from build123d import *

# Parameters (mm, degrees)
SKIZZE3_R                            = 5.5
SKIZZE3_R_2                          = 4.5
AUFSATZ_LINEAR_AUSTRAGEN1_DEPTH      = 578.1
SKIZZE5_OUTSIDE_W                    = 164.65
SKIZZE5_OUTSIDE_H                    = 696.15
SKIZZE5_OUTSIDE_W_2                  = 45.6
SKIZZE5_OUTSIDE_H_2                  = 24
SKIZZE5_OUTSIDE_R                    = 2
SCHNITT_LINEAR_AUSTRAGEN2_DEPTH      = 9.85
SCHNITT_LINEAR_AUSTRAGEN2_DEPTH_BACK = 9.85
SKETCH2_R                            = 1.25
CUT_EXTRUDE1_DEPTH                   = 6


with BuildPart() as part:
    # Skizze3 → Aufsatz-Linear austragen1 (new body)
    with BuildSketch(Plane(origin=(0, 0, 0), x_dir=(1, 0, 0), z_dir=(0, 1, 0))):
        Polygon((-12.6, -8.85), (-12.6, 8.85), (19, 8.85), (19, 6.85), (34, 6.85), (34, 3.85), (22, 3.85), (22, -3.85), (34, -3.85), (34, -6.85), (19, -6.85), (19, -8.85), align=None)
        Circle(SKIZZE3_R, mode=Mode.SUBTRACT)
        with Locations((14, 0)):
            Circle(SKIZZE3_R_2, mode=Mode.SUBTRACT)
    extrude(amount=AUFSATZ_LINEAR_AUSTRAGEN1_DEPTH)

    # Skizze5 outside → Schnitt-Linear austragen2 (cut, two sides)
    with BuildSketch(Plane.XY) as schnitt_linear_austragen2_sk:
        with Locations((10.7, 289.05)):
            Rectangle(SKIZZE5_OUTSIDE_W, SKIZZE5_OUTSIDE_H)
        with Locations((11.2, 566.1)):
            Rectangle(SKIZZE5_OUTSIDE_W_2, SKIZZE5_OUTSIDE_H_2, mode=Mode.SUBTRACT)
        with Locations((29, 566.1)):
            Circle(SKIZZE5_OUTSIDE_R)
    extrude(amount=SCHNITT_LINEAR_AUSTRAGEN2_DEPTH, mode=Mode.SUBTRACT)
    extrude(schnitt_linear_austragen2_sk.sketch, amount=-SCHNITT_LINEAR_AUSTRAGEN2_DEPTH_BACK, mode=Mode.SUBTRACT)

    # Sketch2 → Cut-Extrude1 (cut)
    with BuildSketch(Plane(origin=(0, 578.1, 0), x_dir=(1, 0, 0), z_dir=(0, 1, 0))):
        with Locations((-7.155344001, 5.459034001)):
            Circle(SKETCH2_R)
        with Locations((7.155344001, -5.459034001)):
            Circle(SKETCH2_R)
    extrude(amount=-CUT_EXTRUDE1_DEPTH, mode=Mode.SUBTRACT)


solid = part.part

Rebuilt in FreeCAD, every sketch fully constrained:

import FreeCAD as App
import Part
import Sketcher

V = App.Vector
Q = App.Units.Quantity

doc = App.newDocument("Part")
body = doc.addObject("PartDesign::Body", "Body")

sketch1 = body.newObject("Sketcher::SketchObject", "Sketch")
sketch1.AttachmentSupport = (doc.getObject("XZ_Plane"), [""])
sketch1.MapMode = "FlatFace"
sketch1.addGeometry([
    Part.LineSegment(V(-12.6, -8.85, 0), V(-12.6, 8.85, 0)),
    Part.LineSegment(V(-12.6, 8.85, 0), V(19, 8.85, 0)),
    Part.LineSegment(V(19, 8.85, 0), V(19, 6.85, 0)),
    Part.LineSegment(V(19, 6.85, 0), V(34, 6.85, 0)),
    Part.LineSegment(V(34, 6.85, 0), V(34, 3.85, 0)),
    Part.LineSegment(V(34, 3.85, 0), V(22, 3.85, 0)),
    Part.LineSegment(V(22, 3.85, 0), V(22, -3.85, 0)),
    Part.LineSegment(V(22, -3.85, 0), V(34, -3.85, 0)),
    Part.LineSegment(V(34, -3.85, 0), V(34, -6.85, 0)),
    Part.LineSegment(V(34, -6.85, 0), V(19, -6.85, 0)),
    Part.LineSegment(V(19, -6.85, 0), V(19, -8.85, 0)),
    Part.LineSegment(V(19, -8.85, 0), V(-12.6, -8.85, 0)),
    Part.Circle(V(14, 0, 0), V(0, 0, 1), 4.5),
    Part.Circle(V(0, 0, 0), V(0, 0, 1), 5.5),
], False)
sketch1.addConstraint([
    Sketcher.Constraint("Coincident", 0, 2, 1, 1),
    Sketcher.Constraint("Coincident", 1, 2, 2, 1),
    Sketcher.Constraint("Coincident", 2, 2, 3, 1),
    Sketcher.Constraint("Coincident", 3, 2, 4, 1),
    Sketcher.Constraint("Coincident", 4, 2, 5, 1),
    Sketcher.Constraint("Coincident", 5, 2, 6, 1),
    Sketcher.Constraint("Coincident", 6, 2, 7, 1),
    Sketcher.Constraint("Coincident", 7, 2, 8, 1),
    Sketcher.Constraint("Coincident", 8, 2, 9, 1),
    Sketcher.Constraint("Coincident", 9, 2, 10, 1),
    Sketcher.Constraint("Coincident", 10, 2, 11, 1),
    Sketcher.Constraint("Coincident", 11, 2, 0, 1),
    Sketcher.Constraint("Vertical", 0),
    Sketcher.Constraint("Horizontal", 1),
    Sketcher.Constraint("Vertical", 2),
    Sketcher.Constraint("Horizontal", 3),
    Sketcher.Constraint("Vertical", 4),
    Sketcher.Constraint("Horizontal", 5),
    Sketcher.Constraint("Vertical", 6),
    Sketcher.Constraint("Horizontal", 7),
    Sketcher.Constraint("Vertical", 8),
    Sketcher.Constraint("Horizontal", 9),
    Sketcher.Constraint("Vertical", 10),
    Sketcher.Constraint("Horizontal", 11),
    Sketcher.Constraint("Coincident", 13, 3, -1, 1),
    Sketcher.Constraint("Symmetric", 4, 2, 7, 2, -1),
    Sketcher.Constraint("Symmetric", 2, 2, 9, 2, -1),
    Sketcher.Constraint("PointOnObject", 12, 3, -1),
    Sketcher.Constraint("Equal", 2, 10),
    Sketcher.Constraint("Diameter", 12, Q("9 mm")),
    Sketcher.Constraint("Diameter", 13, Q("11 mm")),
    Sketcher.Constraint("DistanceX", 3, 1, 3, 2, Q("15 mm")),
    Sketcher.Constraint("DistanceX", 5, 2, 5, 1, Q("12 mm")),
    Sketcher.Constraint("DistanceY", 2, 2, 2, 1, Q("2 mm")),
    Sketcher.Constraint("DistanceY", 4, 2, 4, 1, Q("3 mm")),
    Sketcher.Constraint("DistanceX", 1, 1, 1, 2, Q("31.6 mm")),
    Sketcher.Constraint("DistanceY", 0, 1, 0, 2, Q("17.7 mm")),
    Sketcher.Constraint("DistanceX", -1, 1, 12, 3, Q("14 mm")),
    Sketcher.Constraint("DistanceX", -1, 1, 1, 2, Q("19 mm")),
])
pad1 = body.newObject("PartDesign::Pad", "Pad")
pad1.Profile = sketch1
pad1.Length = 578.1
pad1.Reversed = True

sketch2 = body.newObject("Sketcher::SketchObject", "Sketch001")
sketch2.AttachmentSupport = (doc.getObject("XY_Plane"), [""])
sketch2.MapMode = "FlatFace"
sketch2.addGeometry([
    Part.LineSegment(V(-71.625, 637.125, 0), V(-71.625, -59.025, 0)),
    Part.LineSegment(V(-71.625, -59.025, 0), V(93.025, -59.025, 0)),
    Part.LineSegment(V(93.025, -59.025, 0), V(93.025, 637.125, 0)),
    Part.LineSegment(V(93.025, 637.125, 0), V(-71.625, 637.125, 0)),
    Part.LineSegment(V(34, 554.1, 0), V(-11.6, 554.1, 0)),
    Part.LineSegment(V(-11.6, 554.1, 0), V(-11.6, 578.1, 0)),
    Part.LineSegment(V(-11.6, 578.1, 0), V(34, 578.1, 0)),
    Part.LineSegment(V(34, 578.1, 0), V(34, 554.1, 0)),
    Part.Circle(V(29, 566.1, 0), V(0, 0, 1), 2),
], False)
sketch2.addConstraint([
    Sketcher.Constraint("Coincident", 0, 2, 1, 1),
    Sketcher.Constraint("Coincident", 1, 2, 2, 1),
    Sketcher.Constraint("Coincident", 2, 2, 3, 1),
    Sketcher.Constraint("Coincident", 3, 2, 0, 1),
    Sketcher.Constraint("Coincident", 4, 2, 5, 1),
    Sketcher.Constraint("Coincident", 5, 2, 6, 1),
    Sketcher.Constraint("Coincident", 6, 2, 7, 1),
    Sketcher.Constraint("Coincident", 7, 2, 4, 1),
    Sketcher.Constraint("Vertical", 0),
    Sketcher.Constraint("Horizontal", 1),
    Sketcher.Constraint("Vertical", 2),
    Sketcher.Constraint("Horizontal", 3),
    Sketcher.Constraint("Horizontal", 4),
    Sketcher.Constraint("Vertical", 5),
    Sketcher.Constraint("Horizontal", 6),
    Sketcher.Constraint("Vertical", 7),
    Sketcher.Constraint("Diameter", 8, Q("4 mm")),
    Sketcher.Constraint("DistanceY", 5, 1, 5, 2, Q("24 mm")),
    Sketcher.Constraint("DistanceX", 4, 2, 4, 1, Q("45.6 mm")),
    Sketcher.Constraint("DistanceX", -1, 1, 8, 3, Q("29 mm")),
    Sketcher.Constraint("DistanceX", -1, 1, 6, 2, Q("34 mm")),
    Sketcher.Constraint("DistanceY", 4, 2, 8, 3, Q("12 mm")),
    Sketcher.Constraint("DistanceX", 1, 1, 1, 2, Q("164.65 mm")),
    Sketcher.Constraint("DistanceY", 0, 2, 0, 1, Q("696.15 mm")),
    Sketcher.Constraint("DistanceY", -1, 1, 8, 3, Q("566.1 mm")),
    Sketcher.Constraint("DistanceX", 0, 2, -1, 1, Q("71.625 mm")),
    Sketcher.Constraint("DistanceY", 0, 2, -1, 1, Q("59.025 mm")),
])
pocket1 = body.newObject("PartDesign::Pocket", "Pocket")
pocket1.Profile = sketch2
pocket1.Type = "ThroughAll"
pocket1.Midplane = True

sketch3 = body.newObject("Sketcher::SketchObject", "Sketch002")
sketch3.AttachmentSupport = (doc.getObject("XZ_Plane"), [""])
sketch3.MapMode = "FlatFace"
sketch3.AttachmentOffset = App.Placement(V(0, 0, -578.1), App.Rotation())
sketch3.addGeometry([
    Part.Circle(V(-7.155344, -5.459034, 0), V(0, 0, 1), 1.25),
    Part.Circle(V(7.155344, 5.459034, 0), V(0, 0, 1), 1.25),
], False)
sketch3.addConstraint([
    Sketcher.Constraint("Equal", 0, 1),
    Sketcher.Constraint("Symmetric", 0, 3, 1, 3, -1, 1),
    Sketcher.Constraint("Diameter", 0, Q("2.5 mm")),
    Sketcher.Constraint("DistanceX", 0, 3, 1, 3, Q("14.310688 mm")),
    Sketcher.Constraint("DistanceY", 0, 3, 1, 3, Q("10.918068 mm")),
])
pocket2 = body.newObject("PartDesign::Pocket", "Pocket001")
pocket2.Profile = sketch3
pocket2.Length = 6
pocket2.Reversed = True

doc.recompute()
